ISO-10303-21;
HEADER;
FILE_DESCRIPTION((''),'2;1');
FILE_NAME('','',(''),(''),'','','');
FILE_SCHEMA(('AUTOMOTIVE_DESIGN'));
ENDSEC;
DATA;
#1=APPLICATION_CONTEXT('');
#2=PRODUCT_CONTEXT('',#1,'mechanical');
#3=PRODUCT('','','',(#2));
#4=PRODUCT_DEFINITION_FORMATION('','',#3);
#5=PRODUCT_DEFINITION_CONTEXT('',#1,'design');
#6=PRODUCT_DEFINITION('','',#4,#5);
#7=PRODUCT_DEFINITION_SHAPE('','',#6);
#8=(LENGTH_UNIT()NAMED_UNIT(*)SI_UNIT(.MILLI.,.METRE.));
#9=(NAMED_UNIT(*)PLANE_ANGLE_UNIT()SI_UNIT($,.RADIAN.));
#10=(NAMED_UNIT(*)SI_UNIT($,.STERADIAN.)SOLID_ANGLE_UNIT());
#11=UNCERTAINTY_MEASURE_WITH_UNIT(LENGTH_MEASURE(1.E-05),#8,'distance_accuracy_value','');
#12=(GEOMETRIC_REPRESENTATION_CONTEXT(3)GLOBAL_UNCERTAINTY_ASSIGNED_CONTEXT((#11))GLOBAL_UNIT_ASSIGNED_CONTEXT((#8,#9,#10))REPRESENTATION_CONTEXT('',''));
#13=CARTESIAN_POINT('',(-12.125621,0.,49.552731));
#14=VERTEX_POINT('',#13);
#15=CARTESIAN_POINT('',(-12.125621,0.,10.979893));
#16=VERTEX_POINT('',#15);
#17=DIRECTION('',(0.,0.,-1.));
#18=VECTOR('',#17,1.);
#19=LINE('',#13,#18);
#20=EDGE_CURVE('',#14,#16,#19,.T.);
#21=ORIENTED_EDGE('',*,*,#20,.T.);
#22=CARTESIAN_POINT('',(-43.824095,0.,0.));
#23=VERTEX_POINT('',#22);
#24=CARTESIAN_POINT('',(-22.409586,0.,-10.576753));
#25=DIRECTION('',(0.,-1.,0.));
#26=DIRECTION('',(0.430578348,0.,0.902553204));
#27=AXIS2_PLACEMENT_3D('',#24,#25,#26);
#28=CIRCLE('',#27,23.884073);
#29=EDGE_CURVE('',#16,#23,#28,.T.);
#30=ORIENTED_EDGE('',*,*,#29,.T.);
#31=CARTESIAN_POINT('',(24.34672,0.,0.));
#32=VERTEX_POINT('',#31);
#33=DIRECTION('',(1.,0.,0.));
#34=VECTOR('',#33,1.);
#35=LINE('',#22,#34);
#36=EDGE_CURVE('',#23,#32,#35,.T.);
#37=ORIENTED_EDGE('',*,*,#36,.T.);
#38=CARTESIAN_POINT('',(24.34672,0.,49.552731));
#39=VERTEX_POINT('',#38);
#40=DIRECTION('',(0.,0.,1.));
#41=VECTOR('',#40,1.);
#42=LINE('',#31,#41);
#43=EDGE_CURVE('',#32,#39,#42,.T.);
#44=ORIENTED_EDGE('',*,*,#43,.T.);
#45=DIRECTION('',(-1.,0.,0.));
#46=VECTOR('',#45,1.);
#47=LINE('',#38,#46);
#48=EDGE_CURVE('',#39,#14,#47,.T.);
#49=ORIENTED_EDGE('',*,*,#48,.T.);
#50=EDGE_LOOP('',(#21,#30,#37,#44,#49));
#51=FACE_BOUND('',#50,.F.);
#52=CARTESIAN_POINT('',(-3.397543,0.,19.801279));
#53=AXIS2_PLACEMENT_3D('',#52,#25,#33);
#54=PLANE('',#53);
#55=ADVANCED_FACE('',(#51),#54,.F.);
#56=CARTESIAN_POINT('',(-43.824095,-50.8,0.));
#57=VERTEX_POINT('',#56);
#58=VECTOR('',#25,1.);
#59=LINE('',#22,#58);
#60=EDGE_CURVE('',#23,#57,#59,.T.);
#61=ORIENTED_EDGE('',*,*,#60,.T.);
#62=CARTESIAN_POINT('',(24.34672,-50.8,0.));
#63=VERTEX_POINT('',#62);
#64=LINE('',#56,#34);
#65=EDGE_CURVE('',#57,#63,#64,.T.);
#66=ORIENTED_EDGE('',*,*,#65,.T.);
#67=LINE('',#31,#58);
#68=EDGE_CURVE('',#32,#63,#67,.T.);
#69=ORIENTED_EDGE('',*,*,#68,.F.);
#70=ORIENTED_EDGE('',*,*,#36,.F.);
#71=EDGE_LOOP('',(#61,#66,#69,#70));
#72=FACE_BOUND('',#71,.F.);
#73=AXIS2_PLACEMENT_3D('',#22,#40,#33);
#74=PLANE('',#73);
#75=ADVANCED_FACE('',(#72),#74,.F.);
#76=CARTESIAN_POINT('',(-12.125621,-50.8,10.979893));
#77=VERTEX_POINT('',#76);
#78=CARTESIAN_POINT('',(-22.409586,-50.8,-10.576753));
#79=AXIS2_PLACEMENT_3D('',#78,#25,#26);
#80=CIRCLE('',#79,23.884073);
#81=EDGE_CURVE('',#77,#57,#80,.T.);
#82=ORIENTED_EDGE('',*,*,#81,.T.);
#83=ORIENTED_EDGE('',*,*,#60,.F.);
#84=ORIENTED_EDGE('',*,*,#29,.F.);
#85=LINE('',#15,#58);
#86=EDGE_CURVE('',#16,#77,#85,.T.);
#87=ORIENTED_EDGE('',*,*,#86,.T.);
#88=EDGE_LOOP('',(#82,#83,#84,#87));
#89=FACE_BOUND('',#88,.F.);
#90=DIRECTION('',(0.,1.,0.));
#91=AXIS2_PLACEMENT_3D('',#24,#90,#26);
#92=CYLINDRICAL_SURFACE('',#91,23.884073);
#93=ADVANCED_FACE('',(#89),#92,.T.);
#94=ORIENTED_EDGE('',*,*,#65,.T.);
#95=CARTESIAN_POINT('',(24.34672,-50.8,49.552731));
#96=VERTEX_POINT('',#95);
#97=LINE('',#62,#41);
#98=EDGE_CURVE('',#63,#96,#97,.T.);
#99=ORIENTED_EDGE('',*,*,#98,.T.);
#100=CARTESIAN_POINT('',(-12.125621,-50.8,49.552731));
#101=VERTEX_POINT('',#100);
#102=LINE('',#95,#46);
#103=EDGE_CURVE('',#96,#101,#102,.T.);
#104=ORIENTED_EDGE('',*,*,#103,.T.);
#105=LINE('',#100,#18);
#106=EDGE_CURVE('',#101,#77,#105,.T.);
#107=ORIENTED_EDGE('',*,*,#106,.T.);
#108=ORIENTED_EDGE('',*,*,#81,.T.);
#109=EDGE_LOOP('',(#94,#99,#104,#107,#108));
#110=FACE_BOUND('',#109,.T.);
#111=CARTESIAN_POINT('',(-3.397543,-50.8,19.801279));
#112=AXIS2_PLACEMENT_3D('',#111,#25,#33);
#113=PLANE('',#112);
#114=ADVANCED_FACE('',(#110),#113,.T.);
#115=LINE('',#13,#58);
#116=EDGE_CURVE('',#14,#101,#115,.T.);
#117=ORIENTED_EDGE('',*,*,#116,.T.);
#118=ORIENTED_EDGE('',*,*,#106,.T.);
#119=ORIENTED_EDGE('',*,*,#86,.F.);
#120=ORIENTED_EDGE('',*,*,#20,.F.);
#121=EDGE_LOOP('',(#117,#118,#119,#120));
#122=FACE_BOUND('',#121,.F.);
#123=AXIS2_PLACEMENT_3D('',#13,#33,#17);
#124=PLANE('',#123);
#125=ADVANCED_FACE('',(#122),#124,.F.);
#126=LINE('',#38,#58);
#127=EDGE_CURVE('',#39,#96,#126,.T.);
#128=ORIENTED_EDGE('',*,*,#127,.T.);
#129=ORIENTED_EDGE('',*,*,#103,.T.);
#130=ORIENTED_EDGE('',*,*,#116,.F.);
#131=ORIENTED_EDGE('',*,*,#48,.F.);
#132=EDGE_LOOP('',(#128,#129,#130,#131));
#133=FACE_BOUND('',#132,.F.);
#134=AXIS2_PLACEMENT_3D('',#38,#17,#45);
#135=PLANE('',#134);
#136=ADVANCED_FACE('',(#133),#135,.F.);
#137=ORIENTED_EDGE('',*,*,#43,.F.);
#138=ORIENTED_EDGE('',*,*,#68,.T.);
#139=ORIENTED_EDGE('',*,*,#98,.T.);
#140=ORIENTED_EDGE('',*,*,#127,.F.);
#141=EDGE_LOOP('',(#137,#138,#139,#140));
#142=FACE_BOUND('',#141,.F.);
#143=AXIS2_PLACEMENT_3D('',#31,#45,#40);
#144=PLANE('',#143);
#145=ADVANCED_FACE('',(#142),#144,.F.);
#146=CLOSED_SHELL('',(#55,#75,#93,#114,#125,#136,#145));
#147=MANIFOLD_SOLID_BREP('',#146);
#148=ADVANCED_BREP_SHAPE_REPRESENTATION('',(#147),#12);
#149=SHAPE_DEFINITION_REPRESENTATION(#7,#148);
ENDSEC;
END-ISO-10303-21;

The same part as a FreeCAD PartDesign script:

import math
import FreeCAD as App
import Part
import Sketcher
Q = App.Units.Quantity

doc = App.newDocument("Part")
body = doc.addObject("PartDesign::Body", "Body")

sketch1 = body.newObject("Sketcher::SketchObject", "Sketch")
sketch1.AttachmentSupport = (doc.getObject("XZ_Plane"), [""])
sketch1.MapMode = "FlatFace"
sketch1.addGeometry(Part.LineSegment(App.Vector(-44, 0, 0), App.Vector(24, 0, 0)), False)
sketch1.addGeometry(Part.LineSegment(App.Vector(24, 0, 0), App.Vector(24, 50, 0)), False)
sketch1.addGeometry(Part.LineSegment(App.Vector(24, 50, 0), App.Vector(-12, 50, 0)), False)
sketch1.addGeometry(Part.LineSegment(App.Vector(-12, 50, 0), App.Vector(-12, 11, 0)), False)
sketch1.addGeometry(Part.ArcOfCircle(Part.Circle(App.Vector(-22, -11, 0), App.Vector(0, 0, 1), 24), math.radians(64), math.radians(154)), False)
sketch1.addConstraint(Sketcher.Constraint("Coincident", 0, 2, 1, 1))
sketch1.addConstraint(Sketcher.Constraint("Coincident", 1, 2, 2, 1))
sketch1.addConstraint(Sketcher.Constraint("Coincident", 2, 2, 3, 1))
sketch1.addConstraint(Sketcher.Constraint("Coincident", 3, 2, 4, 1))
sketch1.addConstraint(Sketcher.Constraint("Coincident", 4, 2, 0, 1))
sketch1.addConstraint(Sketcher.Constraint("Horizontal", 0))
sketch1.addConstraint(Sketcher.Constraint("Vertical", 1))
sketch1.addConstraint(Sketcher.Constraint("Horizontal", 2))
sketch1.addConstraint(Sketcher.Constraint("Vertical", 3))
sketch1.addConstraint(Sketcher.Constraint("PointOnObject", 0, 2, -1))
sketch1.addConstraint(Sketcher.Constraint("Radius", 4, 23.884073))
sketch1.addConstraint(Sketcher.Constraint("DistanceX", 2, 2, 2, 1, 36.472341))
sketch1.addConstraint(Sketcher.Constraint("DistanceY", 1, 1, 1, 2, 49.552731))
sketch1.addConstraint(Sketcher.Constraint("DistanceY", 3, 2, 3, 1, 38.572838))
sketch1.addConstraint(Sketcher.Constraint("DistanceX", 0, 1, 0, 2, 68.170815))
sketch1.addConstraint(Sketcher.Constraint("DistanceX", -1, 1, 0, 2, 24.34672))
pad1 = body.newObject("PartDesign::Pad", "Pad")
pad1.Profile = sketch1
pad1.Length = Q("2 in")

doc.recompute()
